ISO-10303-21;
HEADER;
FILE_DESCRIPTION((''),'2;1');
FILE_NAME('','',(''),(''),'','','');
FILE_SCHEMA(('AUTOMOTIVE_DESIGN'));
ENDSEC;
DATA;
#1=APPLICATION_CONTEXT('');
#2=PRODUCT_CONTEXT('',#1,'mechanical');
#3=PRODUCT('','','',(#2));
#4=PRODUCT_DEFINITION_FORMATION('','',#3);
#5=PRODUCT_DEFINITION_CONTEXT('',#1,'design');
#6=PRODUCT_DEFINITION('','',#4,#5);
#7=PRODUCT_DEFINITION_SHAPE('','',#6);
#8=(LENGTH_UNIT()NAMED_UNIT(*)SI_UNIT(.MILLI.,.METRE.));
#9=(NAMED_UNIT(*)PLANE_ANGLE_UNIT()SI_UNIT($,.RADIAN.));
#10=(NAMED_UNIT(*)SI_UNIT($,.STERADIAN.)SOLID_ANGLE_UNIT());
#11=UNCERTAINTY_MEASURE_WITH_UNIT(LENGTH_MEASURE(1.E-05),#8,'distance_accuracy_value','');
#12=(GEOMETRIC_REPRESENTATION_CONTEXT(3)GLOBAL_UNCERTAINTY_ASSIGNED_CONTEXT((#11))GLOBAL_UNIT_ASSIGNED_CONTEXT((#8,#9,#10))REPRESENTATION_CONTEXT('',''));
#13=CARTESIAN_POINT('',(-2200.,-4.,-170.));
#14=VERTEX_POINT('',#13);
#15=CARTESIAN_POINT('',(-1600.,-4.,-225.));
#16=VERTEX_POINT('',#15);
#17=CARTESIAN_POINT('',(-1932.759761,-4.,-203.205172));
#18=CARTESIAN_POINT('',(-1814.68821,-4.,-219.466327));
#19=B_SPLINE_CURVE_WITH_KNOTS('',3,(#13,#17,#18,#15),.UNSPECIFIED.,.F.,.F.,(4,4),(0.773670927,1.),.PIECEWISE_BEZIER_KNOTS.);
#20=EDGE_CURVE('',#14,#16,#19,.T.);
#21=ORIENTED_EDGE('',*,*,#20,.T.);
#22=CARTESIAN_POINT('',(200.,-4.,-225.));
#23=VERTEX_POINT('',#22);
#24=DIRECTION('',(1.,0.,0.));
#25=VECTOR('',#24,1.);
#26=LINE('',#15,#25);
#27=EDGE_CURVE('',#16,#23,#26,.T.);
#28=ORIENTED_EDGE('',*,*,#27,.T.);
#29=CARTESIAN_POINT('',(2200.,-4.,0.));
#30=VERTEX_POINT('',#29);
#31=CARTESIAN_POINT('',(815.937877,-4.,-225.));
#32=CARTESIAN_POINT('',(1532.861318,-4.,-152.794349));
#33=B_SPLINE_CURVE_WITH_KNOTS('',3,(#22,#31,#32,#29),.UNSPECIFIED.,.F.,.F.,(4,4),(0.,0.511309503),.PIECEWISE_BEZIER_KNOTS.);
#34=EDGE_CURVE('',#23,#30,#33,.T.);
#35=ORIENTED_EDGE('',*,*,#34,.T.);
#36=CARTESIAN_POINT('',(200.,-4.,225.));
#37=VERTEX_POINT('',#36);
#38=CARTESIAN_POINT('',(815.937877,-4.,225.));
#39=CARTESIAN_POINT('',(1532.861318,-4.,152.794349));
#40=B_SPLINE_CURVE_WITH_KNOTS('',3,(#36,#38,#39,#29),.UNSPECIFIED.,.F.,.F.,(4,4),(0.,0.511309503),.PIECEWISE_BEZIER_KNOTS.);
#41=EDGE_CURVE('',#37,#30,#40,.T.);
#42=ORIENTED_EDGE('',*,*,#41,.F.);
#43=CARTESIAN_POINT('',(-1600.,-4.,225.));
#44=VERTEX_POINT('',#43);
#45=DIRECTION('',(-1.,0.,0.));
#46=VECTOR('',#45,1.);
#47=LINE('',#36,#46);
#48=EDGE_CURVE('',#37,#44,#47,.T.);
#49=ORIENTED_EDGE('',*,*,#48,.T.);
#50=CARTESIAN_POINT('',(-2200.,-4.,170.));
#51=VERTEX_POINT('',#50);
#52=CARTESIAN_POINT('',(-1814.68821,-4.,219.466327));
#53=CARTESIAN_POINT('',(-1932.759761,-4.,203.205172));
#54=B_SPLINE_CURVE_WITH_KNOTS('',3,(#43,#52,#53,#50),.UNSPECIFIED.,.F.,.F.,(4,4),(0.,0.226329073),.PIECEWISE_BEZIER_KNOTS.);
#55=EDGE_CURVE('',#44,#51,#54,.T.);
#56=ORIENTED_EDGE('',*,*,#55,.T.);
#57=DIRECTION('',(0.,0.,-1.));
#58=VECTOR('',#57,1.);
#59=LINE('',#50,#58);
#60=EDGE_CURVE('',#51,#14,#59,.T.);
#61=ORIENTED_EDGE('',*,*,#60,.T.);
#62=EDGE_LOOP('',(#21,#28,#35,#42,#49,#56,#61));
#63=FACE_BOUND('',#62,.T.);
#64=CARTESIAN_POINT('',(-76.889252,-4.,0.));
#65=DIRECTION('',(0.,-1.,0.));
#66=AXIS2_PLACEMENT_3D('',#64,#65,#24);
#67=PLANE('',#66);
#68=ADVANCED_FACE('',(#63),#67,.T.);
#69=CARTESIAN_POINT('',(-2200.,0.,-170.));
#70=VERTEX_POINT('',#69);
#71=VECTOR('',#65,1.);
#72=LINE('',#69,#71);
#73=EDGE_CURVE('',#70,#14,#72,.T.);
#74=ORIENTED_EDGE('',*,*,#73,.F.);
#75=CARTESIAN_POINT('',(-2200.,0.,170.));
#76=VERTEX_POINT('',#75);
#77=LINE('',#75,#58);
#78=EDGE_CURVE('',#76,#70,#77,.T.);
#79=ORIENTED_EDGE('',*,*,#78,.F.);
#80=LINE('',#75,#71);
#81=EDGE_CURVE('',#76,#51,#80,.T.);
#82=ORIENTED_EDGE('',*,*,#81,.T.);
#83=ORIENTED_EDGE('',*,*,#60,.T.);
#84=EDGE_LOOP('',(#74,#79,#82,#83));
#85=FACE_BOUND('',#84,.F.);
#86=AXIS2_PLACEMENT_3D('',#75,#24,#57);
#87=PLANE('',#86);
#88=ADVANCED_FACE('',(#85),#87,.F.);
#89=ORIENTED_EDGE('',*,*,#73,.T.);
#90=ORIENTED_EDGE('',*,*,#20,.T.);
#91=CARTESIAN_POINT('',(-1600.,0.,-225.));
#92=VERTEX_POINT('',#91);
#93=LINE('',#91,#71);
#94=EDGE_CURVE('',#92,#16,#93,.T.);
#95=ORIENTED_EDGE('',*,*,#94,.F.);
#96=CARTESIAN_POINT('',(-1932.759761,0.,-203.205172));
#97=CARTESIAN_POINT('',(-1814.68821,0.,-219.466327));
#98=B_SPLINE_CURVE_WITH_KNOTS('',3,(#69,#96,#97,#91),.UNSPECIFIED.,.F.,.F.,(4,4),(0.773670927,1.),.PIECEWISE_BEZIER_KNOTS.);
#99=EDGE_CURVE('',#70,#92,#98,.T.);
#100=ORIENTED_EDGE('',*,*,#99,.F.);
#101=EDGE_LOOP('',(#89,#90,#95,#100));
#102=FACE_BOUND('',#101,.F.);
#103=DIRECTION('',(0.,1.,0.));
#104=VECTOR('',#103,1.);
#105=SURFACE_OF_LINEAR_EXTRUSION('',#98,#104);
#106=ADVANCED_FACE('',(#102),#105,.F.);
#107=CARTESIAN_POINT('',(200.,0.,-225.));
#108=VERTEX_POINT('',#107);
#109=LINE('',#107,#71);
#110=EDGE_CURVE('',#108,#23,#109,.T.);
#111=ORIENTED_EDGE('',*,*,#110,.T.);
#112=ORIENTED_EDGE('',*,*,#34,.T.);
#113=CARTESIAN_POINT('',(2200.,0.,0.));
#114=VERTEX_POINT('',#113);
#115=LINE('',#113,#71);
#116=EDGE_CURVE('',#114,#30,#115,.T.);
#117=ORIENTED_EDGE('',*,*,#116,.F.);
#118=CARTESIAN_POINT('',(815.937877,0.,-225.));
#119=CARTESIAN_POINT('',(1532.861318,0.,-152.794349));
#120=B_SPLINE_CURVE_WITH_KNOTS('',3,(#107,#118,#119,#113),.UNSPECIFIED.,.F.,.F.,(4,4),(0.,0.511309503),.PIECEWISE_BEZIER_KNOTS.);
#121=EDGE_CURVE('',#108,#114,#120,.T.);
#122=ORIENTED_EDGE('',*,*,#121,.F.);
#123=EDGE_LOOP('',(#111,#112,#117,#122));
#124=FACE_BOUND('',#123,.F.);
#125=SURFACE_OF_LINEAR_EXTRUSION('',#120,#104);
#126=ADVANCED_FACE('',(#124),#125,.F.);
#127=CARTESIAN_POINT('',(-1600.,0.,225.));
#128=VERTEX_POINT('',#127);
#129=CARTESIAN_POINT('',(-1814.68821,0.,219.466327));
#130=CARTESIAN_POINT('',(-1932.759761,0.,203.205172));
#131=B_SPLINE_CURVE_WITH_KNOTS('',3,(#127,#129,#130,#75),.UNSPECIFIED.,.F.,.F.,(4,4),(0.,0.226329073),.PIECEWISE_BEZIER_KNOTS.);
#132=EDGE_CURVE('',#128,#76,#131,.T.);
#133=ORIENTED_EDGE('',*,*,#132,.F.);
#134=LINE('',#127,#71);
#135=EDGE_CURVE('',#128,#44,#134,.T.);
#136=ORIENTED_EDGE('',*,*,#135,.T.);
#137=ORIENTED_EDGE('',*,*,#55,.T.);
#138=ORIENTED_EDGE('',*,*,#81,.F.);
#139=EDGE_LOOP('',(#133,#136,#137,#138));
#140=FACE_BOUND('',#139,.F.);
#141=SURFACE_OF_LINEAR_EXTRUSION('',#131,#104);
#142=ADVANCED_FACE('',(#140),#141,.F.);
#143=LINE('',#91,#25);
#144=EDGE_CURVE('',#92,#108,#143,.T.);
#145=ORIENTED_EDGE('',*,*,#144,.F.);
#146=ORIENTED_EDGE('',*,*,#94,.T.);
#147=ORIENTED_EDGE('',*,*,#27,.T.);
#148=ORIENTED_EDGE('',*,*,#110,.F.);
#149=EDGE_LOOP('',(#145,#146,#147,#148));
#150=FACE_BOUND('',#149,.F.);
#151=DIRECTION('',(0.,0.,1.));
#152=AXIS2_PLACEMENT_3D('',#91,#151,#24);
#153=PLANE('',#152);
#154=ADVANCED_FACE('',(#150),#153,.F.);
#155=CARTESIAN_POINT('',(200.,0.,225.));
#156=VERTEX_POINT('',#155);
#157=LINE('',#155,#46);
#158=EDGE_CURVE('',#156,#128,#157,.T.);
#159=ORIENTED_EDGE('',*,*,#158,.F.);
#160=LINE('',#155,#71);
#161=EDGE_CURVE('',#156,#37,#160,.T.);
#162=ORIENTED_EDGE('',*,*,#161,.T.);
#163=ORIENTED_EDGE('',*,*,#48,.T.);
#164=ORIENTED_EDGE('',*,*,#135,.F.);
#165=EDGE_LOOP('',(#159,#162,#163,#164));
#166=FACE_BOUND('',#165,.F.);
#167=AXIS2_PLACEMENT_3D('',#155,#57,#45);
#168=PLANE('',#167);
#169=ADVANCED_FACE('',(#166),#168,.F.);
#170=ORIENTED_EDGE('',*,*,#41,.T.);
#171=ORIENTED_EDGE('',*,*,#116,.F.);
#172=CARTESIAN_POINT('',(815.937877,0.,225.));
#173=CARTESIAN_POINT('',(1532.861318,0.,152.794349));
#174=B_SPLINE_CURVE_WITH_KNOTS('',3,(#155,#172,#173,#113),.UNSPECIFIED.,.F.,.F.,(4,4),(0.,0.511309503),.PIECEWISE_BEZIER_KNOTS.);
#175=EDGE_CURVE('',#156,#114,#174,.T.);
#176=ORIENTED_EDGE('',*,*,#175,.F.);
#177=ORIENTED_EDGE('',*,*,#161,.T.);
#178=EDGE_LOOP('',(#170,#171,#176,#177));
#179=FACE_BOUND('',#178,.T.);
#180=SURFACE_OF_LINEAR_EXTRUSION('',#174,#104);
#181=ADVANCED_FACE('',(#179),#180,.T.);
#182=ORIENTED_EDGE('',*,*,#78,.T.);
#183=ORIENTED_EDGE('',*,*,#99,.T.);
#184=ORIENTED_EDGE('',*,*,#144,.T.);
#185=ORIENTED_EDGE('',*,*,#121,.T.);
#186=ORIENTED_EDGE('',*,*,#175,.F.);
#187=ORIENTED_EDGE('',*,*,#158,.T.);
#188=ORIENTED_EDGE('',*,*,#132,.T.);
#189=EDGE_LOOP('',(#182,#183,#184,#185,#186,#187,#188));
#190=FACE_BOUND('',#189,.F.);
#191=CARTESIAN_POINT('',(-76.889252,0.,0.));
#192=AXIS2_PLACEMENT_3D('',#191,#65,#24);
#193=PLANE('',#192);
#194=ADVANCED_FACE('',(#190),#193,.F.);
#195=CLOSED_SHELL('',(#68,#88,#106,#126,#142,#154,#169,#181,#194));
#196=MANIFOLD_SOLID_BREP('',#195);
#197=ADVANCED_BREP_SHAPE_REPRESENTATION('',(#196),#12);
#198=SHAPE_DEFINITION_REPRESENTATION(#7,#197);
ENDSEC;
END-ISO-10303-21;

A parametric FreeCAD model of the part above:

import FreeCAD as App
import Part
import Sketcher

doc = App.newDocument("Part")
body = doc.addObject("PartDesign::Body", "Body")

# Sketch on XZ plane
sketch1 = body.newObject("Sketcher::SketchObject", "Sketch")
sketch1.AttachmentSupport = (doc.getObject("XZ_Plane"), [""])
sketch1.MapMode = "FlatFace"
sketch1.addGeometry(Part.BSplineCurve([App.Vector(-2200, -170, 0), App.Vector(-1932.759761, -203.205172, 0), App.Vector(-1814.68821, -219.466327, 0), App.Vector(-1600, -225, 0)], [4, 4], [0.773670927, 1], False, 3, [1, 1, 1, 1], False), False)
sketch1.addGeometry(Part.LineSegment(App.Vector(-1600, -225, 0), App.Vector(200, -225, 0)), False)
sketch1.addGeometry(Part.BSplineCurve([App.Vector(200, -225, 0), App.Vector(815.937877, -225, 0), App.Vector(1532.861318, -152.794349, 0), App.Vector(2200, 0, 0)], [4, 4], [0, 0.511309503], False, 3, [1, 1, 1, 1], False), False)
sketch1.addGeometry(Part.BSplineCurve([App.Vector(200, 225, 0), App.Vector(815.937877, 225, 0), App.Vector(1532.861318, 152.794349, 0), App.Vector(2200, 0, 0)], [4, 4], [0, 0.511309503], False, 3, [1, 1, 1, 1], False), False)
sketch1.addGeometry(Part.LineSegment(App.Vector(200, 225, 0), App.Vector(-1600, 225, 0)), False)
sketch1.addGeometry(Part.BSplineCurve([App.Vector(-1600, 225, 0), App.Vector(-1814.68821, 219.466327, 0), App.Vector(-1932.759761, 203.205172, 0), App.Vector(-2200, 170, 0)], [4, 4], [0, 0.226329073], False, 3, [1, 1, 1, 1], False), False)
sketch1.addGeometry(Part.LineSegment(App.Vector(-2200, 170, 0), App.Vector(-2200, -170, 0)), False)
sketch1.addConstraint(Sketcher.Constraint("Block", 0))
sketch1.addConstraint(Sketcher.Constraint("Block", 2))
sketch1.addConstraint(Sketcher.Constraint("Block", 3))
sketch1.addConstraint(Sketcher.Constraint("Block", 5))
sketch1.addConstraint(Sketcher.Constraint("Coincident", 0, 2, 1, 1))
sketch1.addConstraint(Sketcher.Constraint("Coincident", 1, 2, 2, 1))
sketch1.addConstraint(Sketcher.Constraint("Coincident", 3, 1, 4, 1))
sketch1.addConstraint(Sketcher.Constraint("Coincident", 4, 2, 5, 1))
sketch1.addConstraint(Sketcher.Constraint("Coincident", 5, 2, 6, 1))
sketch1.addConstraint(Sketcher.Constraint("Coincident", 6, 2, 0, 1))
pad1 = body.newObject("PartDesign::Pad", "Pad")
pad1.Profile = sketch1
pad1.Length = 4

doc.recompute()
